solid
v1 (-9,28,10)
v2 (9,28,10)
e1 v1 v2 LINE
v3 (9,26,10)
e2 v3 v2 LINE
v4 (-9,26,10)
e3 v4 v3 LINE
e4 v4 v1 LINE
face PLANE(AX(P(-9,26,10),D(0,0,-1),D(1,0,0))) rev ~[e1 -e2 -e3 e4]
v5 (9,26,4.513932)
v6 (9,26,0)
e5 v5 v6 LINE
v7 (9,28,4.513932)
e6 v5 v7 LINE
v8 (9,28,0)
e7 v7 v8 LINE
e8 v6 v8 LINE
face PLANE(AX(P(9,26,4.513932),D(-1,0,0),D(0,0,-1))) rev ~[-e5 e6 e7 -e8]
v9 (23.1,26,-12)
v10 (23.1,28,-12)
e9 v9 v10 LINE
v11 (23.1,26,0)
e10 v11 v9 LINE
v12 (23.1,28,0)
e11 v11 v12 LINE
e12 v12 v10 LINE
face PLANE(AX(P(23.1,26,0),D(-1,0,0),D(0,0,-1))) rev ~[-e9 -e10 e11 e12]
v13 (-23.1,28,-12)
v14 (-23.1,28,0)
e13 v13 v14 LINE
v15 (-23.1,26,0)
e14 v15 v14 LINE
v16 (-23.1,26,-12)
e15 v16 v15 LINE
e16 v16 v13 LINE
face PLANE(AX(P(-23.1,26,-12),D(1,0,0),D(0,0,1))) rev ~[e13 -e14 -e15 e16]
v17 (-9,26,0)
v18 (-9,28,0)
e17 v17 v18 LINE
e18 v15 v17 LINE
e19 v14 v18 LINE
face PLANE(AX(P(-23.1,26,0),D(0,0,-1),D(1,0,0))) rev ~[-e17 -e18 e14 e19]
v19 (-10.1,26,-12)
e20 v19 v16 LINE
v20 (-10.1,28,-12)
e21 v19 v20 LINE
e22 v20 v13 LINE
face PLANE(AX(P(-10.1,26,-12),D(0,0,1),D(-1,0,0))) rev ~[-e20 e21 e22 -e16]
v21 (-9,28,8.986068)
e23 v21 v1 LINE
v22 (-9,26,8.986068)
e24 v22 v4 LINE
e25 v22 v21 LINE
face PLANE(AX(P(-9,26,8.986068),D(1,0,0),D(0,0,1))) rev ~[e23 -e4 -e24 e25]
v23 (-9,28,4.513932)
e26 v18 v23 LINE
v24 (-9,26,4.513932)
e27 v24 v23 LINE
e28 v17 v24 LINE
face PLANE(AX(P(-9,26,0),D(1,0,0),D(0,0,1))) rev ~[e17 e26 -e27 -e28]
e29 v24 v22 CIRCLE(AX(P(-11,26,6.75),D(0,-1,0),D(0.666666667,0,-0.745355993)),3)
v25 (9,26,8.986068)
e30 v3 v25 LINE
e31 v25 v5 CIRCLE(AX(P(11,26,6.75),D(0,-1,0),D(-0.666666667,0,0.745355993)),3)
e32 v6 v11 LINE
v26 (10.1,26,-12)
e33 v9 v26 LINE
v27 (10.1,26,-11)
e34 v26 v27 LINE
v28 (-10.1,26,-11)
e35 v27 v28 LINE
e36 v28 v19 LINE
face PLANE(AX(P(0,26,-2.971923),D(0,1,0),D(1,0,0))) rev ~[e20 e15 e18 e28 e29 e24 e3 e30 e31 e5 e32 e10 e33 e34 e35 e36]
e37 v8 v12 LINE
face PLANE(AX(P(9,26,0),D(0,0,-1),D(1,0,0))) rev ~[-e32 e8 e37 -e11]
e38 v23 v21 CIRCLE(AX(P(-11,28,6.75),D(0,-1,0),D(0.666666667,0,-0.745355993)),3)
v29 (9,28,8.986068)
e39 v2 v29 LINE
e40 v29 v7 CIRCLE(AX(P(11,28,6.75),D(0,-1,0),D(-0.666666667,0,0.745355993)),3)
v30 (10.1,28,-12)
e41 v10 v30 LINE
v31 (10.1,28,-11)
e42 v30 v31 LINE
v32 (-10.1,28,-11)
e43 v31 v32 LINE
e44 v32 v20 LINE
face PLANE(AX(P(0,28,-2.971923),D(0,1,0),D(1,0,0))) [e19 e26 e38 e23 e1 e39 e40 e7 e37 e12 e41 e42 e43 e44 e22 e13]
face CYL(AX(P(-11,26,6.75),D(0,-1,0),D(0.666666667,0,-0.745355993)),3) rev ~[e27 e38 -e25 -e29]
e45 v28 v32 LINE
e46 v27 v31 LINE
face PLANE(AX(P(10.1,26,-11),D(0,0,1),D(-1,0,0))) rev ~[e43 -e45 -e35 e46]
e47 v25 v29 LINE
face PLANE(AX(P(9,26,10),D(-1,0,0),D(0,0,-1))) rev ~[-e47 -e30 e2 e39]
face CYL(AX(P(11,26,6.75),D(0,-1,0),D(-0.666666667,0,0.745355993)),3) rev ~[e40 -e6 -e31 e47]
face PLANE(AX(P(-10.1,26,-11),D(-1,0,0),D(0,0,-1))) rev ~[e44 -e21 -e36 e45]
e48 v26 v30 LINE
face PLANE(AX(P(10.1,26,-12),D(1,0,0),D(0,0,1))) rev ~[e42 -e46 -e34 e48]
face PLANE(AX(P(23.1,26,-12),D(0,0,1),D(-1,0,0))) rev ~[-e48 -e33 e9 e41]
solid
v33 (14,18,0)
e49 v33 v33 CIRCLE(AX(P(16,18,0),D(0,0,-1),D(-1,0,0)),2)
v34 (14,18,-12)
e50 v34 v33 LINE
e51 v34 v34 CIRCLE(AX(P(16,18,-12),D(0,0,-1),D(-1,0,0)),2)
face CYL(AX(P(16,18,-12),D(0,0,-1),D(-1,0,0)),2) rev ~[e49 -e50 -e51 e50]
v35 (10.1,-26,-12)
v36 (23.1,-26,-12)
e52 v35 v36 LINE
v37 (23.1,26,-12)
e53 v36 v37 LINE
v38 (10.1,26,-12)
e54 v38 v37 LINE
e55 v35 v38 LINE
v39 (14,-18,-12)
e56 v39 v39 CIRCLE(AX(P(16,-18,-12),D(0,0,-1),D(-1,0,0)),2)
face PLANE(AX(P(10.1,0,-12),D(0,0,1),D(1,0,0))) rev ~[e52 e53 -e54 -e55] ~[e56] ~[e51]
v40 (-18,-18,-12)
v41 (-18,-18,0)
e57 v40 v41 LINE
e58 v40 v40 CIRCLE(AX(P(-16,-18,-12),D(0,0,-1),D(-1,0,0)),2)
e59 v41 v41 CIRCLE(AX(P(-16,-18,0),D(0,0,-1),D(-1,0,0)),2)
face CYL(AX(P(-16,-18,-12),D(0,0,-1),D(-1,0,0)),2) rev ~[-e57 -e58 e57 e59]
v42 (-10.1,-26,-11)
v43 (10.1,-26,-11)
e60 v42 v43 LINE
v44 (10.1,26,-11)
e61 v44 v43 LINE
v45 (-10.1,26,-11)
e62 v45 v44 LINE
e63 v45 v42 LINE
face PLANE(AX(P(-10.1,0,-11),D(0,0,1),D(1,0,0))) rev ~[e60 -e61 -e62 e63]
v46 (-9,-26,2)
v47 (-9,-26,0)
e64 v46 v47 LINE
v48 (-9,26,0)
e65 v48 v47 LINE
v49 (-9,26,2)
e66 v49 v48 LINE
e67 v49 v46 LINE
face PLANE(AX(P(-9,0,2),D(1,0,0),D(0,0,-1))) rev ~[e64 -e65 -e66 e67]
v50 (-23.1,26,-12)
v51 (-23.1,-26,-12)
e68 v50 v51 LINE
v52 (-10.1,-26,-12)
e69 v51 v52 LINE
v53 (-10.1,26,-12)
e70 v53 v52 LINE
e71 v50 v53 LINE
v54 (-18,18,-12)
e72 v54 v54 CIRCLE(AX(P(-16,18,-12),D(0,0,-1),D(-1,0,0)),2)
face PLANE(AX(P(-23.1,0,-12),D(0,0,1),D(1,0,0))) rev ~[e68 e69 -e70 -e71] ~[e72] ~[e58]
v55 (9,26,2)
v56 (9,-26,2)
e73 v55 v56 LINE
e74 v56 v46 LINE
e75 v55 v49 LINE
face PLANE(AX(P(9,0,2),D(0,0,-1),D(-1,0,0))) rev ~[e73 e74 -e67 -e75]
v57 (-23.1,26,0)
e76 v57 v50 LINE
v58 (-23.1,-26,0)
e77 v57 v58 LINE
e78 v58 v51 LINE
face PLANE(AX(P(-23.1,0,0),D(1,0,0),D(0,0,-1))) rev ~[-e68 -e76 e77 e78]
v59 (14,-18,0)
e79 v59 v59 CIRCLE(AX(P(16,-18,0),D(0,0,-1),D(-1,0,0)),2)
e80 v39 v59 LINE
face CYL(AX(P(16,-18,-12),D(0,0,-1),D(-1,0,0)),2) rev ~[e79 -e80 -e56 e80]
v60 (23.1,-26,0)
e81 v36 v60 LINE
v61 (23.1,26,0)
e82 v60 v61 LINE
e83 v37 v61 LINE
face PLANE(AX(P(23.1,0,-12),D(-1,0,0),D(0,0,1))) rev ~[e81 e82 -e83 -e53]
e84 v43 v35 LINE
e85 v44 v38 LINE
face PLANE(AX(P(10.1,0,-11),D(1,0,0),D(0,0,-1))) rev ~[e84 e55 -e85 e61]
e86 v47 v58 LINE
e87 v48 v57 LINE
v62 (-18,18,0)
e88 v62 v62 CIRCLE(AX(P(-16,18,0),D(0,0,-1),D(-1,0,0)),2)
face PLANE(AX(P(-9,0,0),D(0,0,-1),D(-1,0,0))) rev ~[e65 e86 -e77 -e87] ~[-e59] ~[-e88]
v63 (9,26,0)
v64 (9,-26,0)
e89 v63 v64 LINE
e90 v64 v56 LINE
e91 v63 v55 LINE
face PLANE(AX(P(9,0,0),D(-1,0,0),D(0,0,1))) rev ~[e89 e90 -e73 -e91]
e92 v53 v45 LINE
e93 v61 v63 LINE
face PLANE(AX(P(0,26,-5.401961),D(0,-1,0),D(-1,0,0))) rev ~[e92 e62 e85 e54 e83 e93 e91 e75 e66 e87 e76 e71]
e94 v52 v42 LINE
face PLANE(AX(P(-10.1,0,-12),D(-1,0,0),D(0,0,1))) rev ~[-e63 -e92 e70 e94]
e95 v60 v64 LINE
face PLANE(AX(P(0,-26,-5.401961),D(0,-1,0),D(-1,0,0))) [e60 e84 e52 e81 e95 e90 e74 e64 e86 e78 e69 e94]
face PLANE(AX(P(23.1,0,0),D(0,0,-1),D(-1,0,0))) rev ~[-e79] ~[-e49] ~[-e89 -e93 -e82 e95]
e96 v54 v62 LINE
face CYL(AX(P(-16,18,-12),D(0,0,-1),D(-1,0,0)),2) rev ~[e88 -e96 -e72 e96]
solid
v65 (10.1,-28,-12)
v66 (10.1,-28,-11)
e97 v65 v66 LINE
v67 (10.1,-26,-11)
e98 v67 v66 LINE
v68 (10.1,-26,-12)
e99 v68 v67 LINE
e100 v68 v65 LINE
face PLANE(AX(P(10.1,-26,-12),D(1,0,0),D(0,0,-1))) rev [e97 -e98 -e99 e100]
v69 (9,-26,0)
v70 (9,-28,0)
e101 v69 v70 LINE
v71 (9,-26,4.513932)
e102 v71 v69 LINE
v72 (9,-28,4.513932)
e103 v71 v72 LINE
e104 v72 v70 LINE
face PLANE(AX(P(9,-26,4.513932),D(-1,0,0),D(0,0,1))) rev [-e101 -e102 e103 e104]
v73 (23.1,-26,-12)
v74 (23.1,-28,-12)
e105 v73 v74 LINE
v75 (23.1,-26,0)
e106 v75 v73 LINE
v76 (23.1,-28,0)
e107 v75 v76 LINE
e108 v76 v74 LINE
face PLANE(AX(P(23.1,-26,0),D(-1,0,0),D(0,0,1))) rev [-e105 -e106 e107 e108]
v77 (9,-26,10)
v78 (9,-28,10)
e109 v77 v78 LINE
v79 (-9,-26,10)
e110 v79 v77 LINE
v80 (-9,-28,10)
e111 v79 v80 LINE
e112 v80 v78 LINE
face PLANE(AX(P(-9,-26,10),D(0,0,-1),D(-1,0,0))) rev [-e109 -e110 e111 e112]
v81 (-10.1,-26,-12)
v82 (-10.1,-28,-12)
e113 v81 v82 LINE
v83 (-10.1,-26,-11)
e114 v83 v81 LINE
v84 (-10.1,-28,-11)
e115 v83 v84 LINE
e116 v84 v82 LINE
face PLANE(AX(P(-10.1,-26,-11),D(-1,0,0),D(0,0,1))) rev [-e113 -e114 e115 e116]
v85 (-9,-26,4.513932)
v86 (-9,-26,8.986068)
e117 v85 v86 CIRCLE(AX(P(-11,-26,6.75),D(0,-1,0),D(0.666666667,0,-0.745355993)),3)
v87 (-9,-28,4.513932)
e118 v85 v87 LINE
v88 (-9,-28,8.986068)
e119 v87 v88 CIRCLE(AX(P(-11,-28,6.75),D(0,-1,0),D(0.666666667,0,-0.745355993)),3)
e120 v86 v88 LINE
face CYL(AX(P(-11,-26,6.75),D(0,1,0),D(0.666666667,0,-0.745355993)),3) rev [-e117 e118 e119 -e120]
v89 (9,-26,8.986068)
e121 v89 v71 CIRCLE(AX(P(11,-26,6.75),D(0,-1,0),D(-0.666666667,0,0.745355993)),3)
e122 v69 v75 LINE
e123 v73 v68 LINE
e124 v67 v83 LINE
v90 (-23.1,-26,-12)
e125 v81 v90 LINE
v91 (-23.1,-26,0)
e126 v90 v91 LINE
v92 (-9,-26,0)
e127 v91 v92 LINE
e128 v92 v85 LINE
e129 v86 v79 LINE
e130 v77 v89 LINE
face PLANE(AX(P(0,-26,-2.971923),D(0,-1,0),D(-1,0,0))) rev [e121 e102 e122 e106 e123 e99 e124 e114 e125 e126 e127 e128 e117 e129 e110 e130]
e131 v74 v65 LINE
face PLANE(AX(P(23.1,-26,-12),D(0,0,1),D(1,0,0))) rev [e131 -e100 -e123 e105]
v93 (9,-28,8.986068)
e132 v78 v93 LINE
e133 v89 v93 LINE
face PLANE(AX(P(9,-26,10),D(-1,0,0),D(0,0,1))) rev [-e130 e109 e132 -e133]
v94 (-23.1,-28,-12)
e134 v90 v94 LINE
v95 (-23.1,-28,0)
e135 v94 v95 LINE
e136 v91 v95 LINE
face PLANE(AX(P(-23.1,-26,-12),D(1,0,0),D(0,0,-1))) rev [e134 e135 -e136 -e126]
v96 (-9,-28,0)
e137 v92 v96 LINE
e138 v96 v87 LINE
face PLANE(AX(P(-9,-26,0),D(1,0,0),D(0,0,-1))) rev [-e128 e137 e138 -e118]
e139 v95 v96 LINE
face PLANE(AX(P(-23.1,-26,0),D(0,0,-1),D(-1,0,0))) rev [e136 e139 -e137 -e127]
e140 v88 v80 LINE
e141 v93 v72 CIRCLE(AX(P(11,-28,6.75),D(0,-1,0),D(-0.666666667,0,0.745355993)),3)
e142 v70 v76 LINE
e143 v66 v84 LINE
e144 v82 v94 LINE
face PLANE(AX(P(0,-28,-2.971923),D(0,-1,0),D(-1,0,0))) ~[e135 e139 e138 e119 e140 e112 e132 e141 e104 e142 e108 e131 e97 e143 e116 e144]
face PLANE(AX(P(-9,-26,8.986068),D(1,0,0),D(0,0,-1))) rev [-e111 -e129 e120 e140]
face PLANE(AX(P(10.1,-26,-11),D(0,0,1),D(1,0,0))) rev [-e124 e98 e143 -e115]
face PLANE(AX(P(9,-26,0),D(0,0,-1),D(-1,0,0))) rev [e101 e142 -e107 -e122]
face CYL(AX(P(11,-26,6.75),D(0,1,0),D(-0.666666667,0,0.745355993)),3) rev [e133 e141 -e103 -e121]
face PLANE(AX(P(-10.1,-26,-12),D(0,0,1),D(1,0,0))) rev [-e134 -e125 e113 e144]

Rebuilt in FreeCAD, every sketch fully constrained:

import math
import FreeCAD as App
import Part
import Sketcher

V = App.Vector
Q = App.Units.Quantity


def add_polygon(sketch, points):
    """Adds a closed chain of lines whose ends are joined by coincident constraints."""
    first, n = sketch.GeometryCount, len(points)
    for a, b in zip(points, points[1:] + points[:1]):
        sketch.addGeometry(Part.LineSegment(App.Vector(*a, 0), App.Vector(*b, 0)), False)
    for i in range(n):
        sketch.addConstraint(Sketcher.Constraint("Coincident", first + i, 2, first + (i + 1) % n, 1))

doc = App.newDocument("Part")
body = doc.addObject("PartDesign::Body", "Body")

# Sketch on XZ plane
sketch1 = body.newObject("Sketcher::SketchObject", "Sketch")
sketch1.AttachmentSupport = (doc.getObject("XZ_Plane"), [""])
sketch1.MapMode = "FlatFace"
add_polygon(sketch1, [(9, 0), (23.1, 0), (23.1, -12), (10.1, -12), (10.1, -11), (-10.1, -11), (-10.1, -12), (-23.1, -12), (-23.1, 0), (-9, 0), (-9, 2), (9, 2)])  # lines 0-11
sketch1.addConstraint(Sketcher.Constraint("Horizontal", 0))
sketch1.addConstraint(Sketcher.Constraint("Vertical", 1))
sketch1.addConstraint(Sketcher.Constraint("Horizontal", 2))
sketch1.addConstraint(Sketcher.Constraint("Vertical", 3))
sketch1.addConstraint(Sketcher.Constraint("Horizontal", 4))
sketch1.addConstraint(Sketcher.Constraint("Vertical", 5))
sketch1.addConstraint(Sketcher.Constraint("Horizontal", 6))
sketch1.addConstraint(Sketcher.Constraint("Vertical", 7))
sketch1.addConstraint(Sketcher.Constraint("Horizontal", 8))
sketch1.addConstraint(Sketcher.Constraint("Vertical", 9))
sketch1.addConstraint(Sketcher.Constraint("Horizontal", 10))
sketch1.addConstraint(Sketcher.Constraint("Vertical", 11))
sketch1.addConstraint(Sketcher.Constraint("Symmetric", 0, 2, 7, 2, -1, 1))
sketch1.addConstraint(Sketcher.Constraint("Symmetric", 2, 2, 5, 2, -2))
sketch1.addConstraint(Sketcher.Constraint("Symmetric", 8, 2, 11, 2, -2))
sketch1.addConstraint(Sketcher.Constraint("DistanceX", 2, 2, 2, 1, Q("13 mm")))
sketch1.addConstraint(Sketcher.Constraint("DistanceX", 10, 1, 10, 2, Q("18 mm")))
sketch1.addConstraint(Sketcher.Constraint("DistanceY", 1, 2, 1, 1, Q("12 mm")))
sketch1.addConstraint(Sketcher.Constraint("DistanceY", 3, 1, 3, 2, Q("1 mm")))
sketch1.addConstraint(Sketcher.Constraint("DistanceY", 9, 1, 9, 2, Q("2 mm")))
sketch1.addConstraint(Sketcher.Constraint("DistanceX", 0, 1, 0, 2, Q("14.1 mm")))
pad1 = body.newObject("PartDesign::Pad", "Pad")
pad1.Profile = sketch1
pad1.Length = 52
pad1.Midplane = True

# Sketch on XY plane
sketch2 = body.newObject("Sketcher::SketchObject", "Sketch001")
sketch2.AttachmentSupport = (doc.getObject("XY_Plane"), [""])
sketch2.MapMode = "FlatFace"
sketch2.AttachmentOffset = App.Placement(V(0, 0, -12), App.Rotation())
sketch2.addGeometry(Part.Circle(V(-16, -18, 0), V(0, 0, 1), 2), False)
sketch2.addConstraint(Sketcher.Constraint("Diameter", 0, Q("4 mm")))
sketch2.addConstraint(Sketcher.Constraint("DistanceX", 0, 3, -1, 1, Q("16 mm")))
sketch2.addConstraint(Sketcher.Constraint("DistanceY", 0, 3, -1, 1, Q("18 mm")))
pocket1 = body.newObject("PartDesign::Pocket", "Pocket")
pocket1.Profile = sketch2
pocket1.Type = "UpToFirst"
pocket1.Reversed = True

# Sketch on XY plane
sketch3 = body.newObject("Sketcher::SketchObject", "Sketch002")
sketch3.AttachmentSupport = (doc.getObject("XY_Plane"), [""])
sketch3.MapMode = "FlatFace"
sketch3.AttachmentOffset = App.Placement(V(0, 0, -12), App.Rotation())
sketch3.addGeometry(Part.Circle(V(16, -18, 0), V(0, 0, 1), 2), False)
sketch3.addConstraint(Sketcher.Constraint("Diameter", 0, Q("4 mm")))
sketch3.addConstraint(Sketcher.Constraint("DistanceX", -1, 1, 0, 3, Q("16 mm")))
sketch3.addConstraint(Sketcher.Constraint("DistanceY", 0, 3, -1, 1, Q("18 mm")))
pocket2 = body.newObject("PartDesign::Pocket", "Pocket001")
pocket2.Profile = sketch3
pocket2.Type = "UpToFirst"
pocket2.Reversed = True

# Sketch on XY plane
sketch4 = body.newObject("Sketcher::SketchObject", "Sketch003")
sketch4.AttachmentSupport = (doc.getObject("XY_Plane"), [""])
sketch4.MapMode = "FlatFace"
sketch4.AttachmentOffset = App.Placement(V(0, 0, -12), App.Rotation())
sketch4.addGeometry(Part.Circle(V(16, 18, 0), V(0, 0, 1), 2), False)
sketch4.addConstraint(Sketcher.Constraint("Diameter", 0, Q("4 mm")))
sketch4.addConstraint(Sketcher.Constraint("DistanceX", -1, 1, 0, 3, Q("16 mm")))
sketch4.addConstraint(Sketcher.Constraint("DistanceY", -1, 1, 0, 3, Q("18 mm")))
pocket3 = body.newObject("PartDesign::Pocket", "Pocket002")
pocket3.Profile = sketch4
pocket3.Type = "UpToFirst"
pocket3.Reversed = True

# Sketch on XY plane
sketch5 = body.newObject("Sketcher::SketchObject", "Sketch004")
sketch5.AttachmentSupport = (doc.getObject("XY_Plane"), [""])
sketch5.MapMode = "FlatFace"
sketch5.AttachmentOffset = App.Placement(V(0, 0, -12), App.Rotation())
sketch5.addGeometry(Part.Circle(V(-16, 18, 0), V(0, 0, 1), 2), False)
sketch5.addConstraint(Sketcher.Constraint("Diameter", 0, Q("4 mm")))
sketch5.addConstraint(Sketcher.Constraint("DistanceX", 0, 3, -1, 1, Q("16 mm")))
sketch5.addConstraint(Sketcher.Constraint("DistanceY", -1, 1, 0, 3, Q("18 mm")))
pocket4 = body.newObject("PartDesign::Pocket", "Pocket003")
pocket4.Profile = sketch5
pocket4.Type = "UpToFirst"
pocket4.Reversed = True
body2 = doc.addObject("PartDesign::Body", "Body001")

# Sketch on XZ plane
sketch6 = body2.newObject("Sketcher::SketchObject", "Sketch005")
sketch6.AttachmentSupport = (doc.getObject("XZ_Plane001"), [""])
sketch6.MapMode = "FlatFace"
sketch6.AttachmentOffset = App.Placement(V(0, 0, -26), App.Rotation())
sketch6.addGeometry(Part.LineSegment(V(10.1, -11, 0), V(-10.1, -11, 0)), False)
sketch6.addGeometry(Part.LineSegment(V(-10.1, -11, 0), V(-10.1, -12, 0)), False)
sketch6.addGeometry(Part.LineSegment(V(-10.1, -12, 0), V(-23.1, -12, 0)), False)
sketch6.addGeometry(Part.LineSegment(V(-23.1, -12, 0), V(-23.1, 0, 0)), False)
sketch6.addGeometry(Part.LineSegment(V(-23.1, 0, 0), V(-9, 0, 0)), False)
sketch6.addGeometry(Part.LineSegment(V(-9, 0, 0), V(-9, 4.5, 0)), False)
sketch6.addGeometry(Part.ArcOfCircle(Part.Circle(V(-11, 6.8, 0), V(0, 0, 1), 3), math.radians(-48), math.radians(48)), False)
sketch6.addGeometry(Part.LineSegment(V(-9, 9, 0), V(-9, 10, 0)), False)
sketch6.addGeometry(Part.LineSegment(V(-9, 10, 0), V(9, 10, 0)), False)
sketch6.addGeometry(Part.LineSegment(V(9, 10, 0), V(9, 9, 0)), False)
sketch6.addGeometry(Part.ArcOfCircle(Part.Circle(V(11, 6.8, 0), V(0, 0, 1), 3), math.radians(132), math.radians(228)), False)
sketch6.addGeometry(Part.LineSegment(V(9, 4.5, 0), V(9, 0, 0)), False)
sketch6.addGeometry(Part.LineSegment(V(9, 0, 0), V(23.1, 0, 0)), False)
sketch6.addGeometry(Part.LineSegment(V(23.1, 0, 0), V(23.1, -12, 0)), False)
sketch6.addGeometry(Part.LineSegment(V(23.1, -12, 0), V(10.1, -12, 0)), False)
sketch6.addGeometry(Part.LineSegment(V(10.1, -12, 0), V(10.1, -11, 0)), False)
sketch6.addConstraint(Sketcher.Constraint("Coincident", 0, 2, 1, 1))
sketch6.addConstraint(Sketcher.Constraint("Coincident", 1, 2, 2, 1))
sketch6.addConstraint(Sketcher.Constraint("Coincident", 2, 2, 3, 1))
sketch6.addConstraint(Sketcher.Constraint("Coincident", 3, 2, 4, 1))
sketch6.addConstraint(Sketcher.Constraint("Coincident", 4, 2, 5, 1))
sketch6.addConstraint(Sketcher.Constraint("Coincident", 5, 2, 6, 1))
sketch6.addConstraint(Sketcher.Constraint("Coincident", 6, 2, 7, 1))
sketch6.addConstraint(Sketcher.Constraint("Coincident", 7, 2, 8, 1))
sketch6.addConstraint(Sketcher.Constraint("Coincident", 8, 2, 9, 1))
sketch6.addConstraint(Sketcher.Constraint("Coincident", 9, 2, 10, 1))
sketch6.addConstraint(Sketcher.Constraint("Coincident", 10, 2, 11, 1))
sketch6.addConstraint(Sketcher.Constraint("Coincident", 11, 2, 12, 1))
sketch6.addConstraint(Sketcher.Constraint("Coincident", 12, 2, 13, 1))
sketch6.addConstraint(Sketcher.Constraint("Coincident", 13, 2, 14, 1))
sketch6.addConstraint(Sketcher.Constraint("Coincident", 14, 2, 15, 1))
sketch6.addConstraint(Sketcher.Constraint("Coincident", 15, 2, 0, 1))
sketch6.addConstraint(Sketcher.Constraint("Horizontal", 0))
sketch6.addConstraint(Sketcher.Constraint("Vertical", 1))
sketch6.addConstraint(Sketcher.Constraint("Horizontal", 2))
sketch6.addConstraint(Sketcher.Constraint("Vertical", 3))
sketch6.addConstraint(Sketcher.Constraint("Horizontal", 4))
sketch6.addConstraint(Sketcher.Constraint("Vertical", 5))
sketch6.addConstraint(Sketcher.Constraint("Vertical", 7))
sketch6.addConstraint(Sketcher.Constraint("Horizontal", 8))
sketch6.addConstraint(Sketcher.Constraint("Vertical", 9))
sketch6.addConstraint(Sketcher.Constraint("Vertical", 11))
sketch6.addConstraint(Sketcher.Constraint("Horizontal", 12))
sketch6.addConstraint(Sketcher.Constraint("Vertical", 13))
sketch6.addConstraint(Sketcher.Constraint("Horizontal", 14))
sketch6.addConstraint(Sketcher.Constraint("Vertical", 15))
sketch6.addConstraint(Sketcher.Constraint("Equal", 6, 10))
sketch6.addConstraint(Sketcher.Constraint("Symmetric", 4, 2, 11, 2, -1, 1))
sketch6.addConstraint(Sketcher.Constraint("Symmetric", 6, 3, 10, 3, -2))
sketch6.addConstraint(Sketcher.Constraint("Symmetric", 3, 2, 12, 2, -2))
sketch6.addConstraint(Sketcher.Constraint("Symmetric", 1, 2, 14, 2, -2))
sketch6.addConstraint(Sketcher.Constraint("Horizontal", 6, 2, 9, 2))
sketch6.addConstraint(Sketcher.Constraint("Vertical", 5, 2, 6, 2))
sketch6.addConstraint(Sketcher.Constraint("Radius", 6, Q("3 mm")))
sketch6.addConstraint(Sketcher.Constraint("DistanceX", 2, 2, 2, 1, Q("13 mm")))
sketch6.addConstraint(Sketcher.Constraint("DistanceX", 8, 1, 8, 2, Q("18 mm")))
sketch6.addConstraint(Sketcher.Constraint("DistanceY", 1, 2, 1, 1, Q("1 mm")))
sketch6.addConstraint(Sketcher.Constraint("DistanceY", 3, 1, 3, 2, Q("12 mm")))
sketch6.addConstraint(Sketcher.Constraint("DistanceX", 0, 2, 0, 1, Q("20.2 mm")))
sketch6.addConstraint(Sketcher.Constraint("DistanceX", 6, 3, -1, 1, Q("11 mm")))
sketch6.addConstraint(Sketcher.Constraint("DistanceY", -1, 1, 7, 2, Q("10 mm")))
sketch6.addConstraint(Sketcher.Constraint("DistanceY", -1, 1, 6, 3, Q("6.75 mm")))
pad2 = body2.newObject("PartDesign::Pad", "Pad001")
pad2.Profile = sketch6
pad2.Length = 2
pad2.Reversed = True
body3 = doc.addObject("PartDesign::Body", "Body002")
doc.recompute()

mirroring = doc.addObject("Part::Mirroring", "Mirroring")
mirroring.Source = body2
mirroring.Base = V(0, 0, 0)
mirroring.Normal = V(0, 1, 0)
body3.BaseFeature = mirroring
doc.recompute()
mirroring.Visibility = False

doc.recompute()
